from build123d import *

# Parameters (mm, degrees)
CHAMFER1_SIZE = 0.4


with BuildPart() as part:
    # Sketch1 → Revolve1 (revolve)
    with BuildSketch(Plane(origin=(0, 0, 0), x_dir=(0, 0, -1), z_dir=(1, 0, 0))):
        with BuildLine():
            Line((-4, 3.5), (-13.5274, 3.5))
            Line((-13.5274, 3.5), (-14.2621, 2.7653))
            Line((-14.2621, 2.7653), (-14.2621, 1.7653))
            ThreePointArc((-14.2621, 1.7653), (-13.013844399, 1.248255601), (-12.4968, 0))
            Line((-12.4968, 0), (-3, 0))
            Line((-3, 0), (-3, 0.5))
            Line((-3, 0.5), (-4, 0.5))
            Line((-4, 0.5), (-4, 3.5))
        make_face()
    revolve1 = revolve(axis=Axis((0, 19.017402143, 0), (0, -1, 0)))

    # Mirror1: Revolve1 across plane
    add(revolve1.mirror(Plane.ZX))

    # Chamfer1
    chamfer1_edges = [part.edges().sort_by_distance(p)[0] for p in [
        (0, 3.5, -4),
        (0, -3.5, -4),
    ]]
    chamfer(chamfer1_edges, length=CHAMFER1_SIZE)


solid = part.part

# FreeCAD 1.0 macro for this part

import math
import FreeCAD as App
import Part
import Sketcher

V = App.Vector
Q = App.Units.Quantity


def edges_at(feature, points):
    """Names of the edges that pass closest to the given points."""
    edges = feature.Shape.Edges
    near = lambda p: min(range(len(edges)), key=lambda i: edges[i].distToShape(Part.Vertex(*p))[0])
    return sorted({f"Edge{near(p) + 1}" for p in points})

doc = App.newDocument("Part")
body = doc.addObject("PartDesign::Body", "Body")

# Sketch on YZ plane
sketch1 = doc.addObject("Sketcher::SketchObject", "Sketch")
body.addObject(sketch1)
sketch1.AttachmentSupport = (doc.YZ_Plane, [""])
sketch1.MapMode = "FlatFace"
sketch1.addGeometry(Part.LineSegment(V(3.5, 4, 0), V(3.5, 13.5, 0)), False)
sketch1.addGeometry(Part.LineSegment(V(3.5, 13.5, 0), V(2.8, 14.3, 0)), False)
sketch1.addGeometry(Part.LineSegment(V(2.8, 14.3, 0), V(1.8, 14.3, 0)), False)
sketch1.addGeometry(Part.ArcOfCircle(Part.Circle(V(0, 14.3, 0), V(0, 0, 1), 1.8), math.radians(-90), math.radians(0)), False)
sketch1.addGeometry(Part.LineSegment(V(0, 12.5, 0), V(0, 3, 0)), False)
sketch1.addGeometry(Part.LineSegment(V(0, 3, 0), V(0.5, 3, 0)), False)
sketch1.addGeometry(Part.LineSegment(V(0.5, 3, 0), V(0.5, 4, 0)), False)
sketch1.addGeometry(Part.LineSegment(V(0.5, 4, 0), V(3.5, 4, 0)), False)
sketch1.addConstraint(Sketcher.Constraint("Coincident", 0, 2, 1, 1))
sketch1.addConstraint(Sketcher.Constraint("Coincident", 1, 2, 2, 1))
sketch1.addConstraint(Sketcher.Constraint("Coincident", 2, 2, 3, 2))
sketch1.addConstraint(Sketcher.Constraint("Coincident", 3, 1, 4, 1))
sketch1.addConstraint(Sketcher.Constraint("Coincident", 4, 2, 5, 1))
sketch1.addConstraint(Sketcher.Constraint("Coincident", 5, 2, 6, 1))
sketch1.addConstraint(Sketcher.Constraint("Coincident", 6, 2, 7, 1))
sketch1.addConstraint(Sketcher.Constraint("Coincident", 7, 2, 0, 1))
sketch1.addConstraint(Sketcher.Constraint("Vertical", 0))
sketch1.addConstraint(Sketcher.Constraint("Horizontal", 2))
sketch1.addConstraint(Sketcher.Constraint("Vertical", 4))
sketch1.addConstraint(Sketcher.Constraint("Horizontal", 5))
sketch1.addConstraint(Sketcher.Constraint("Vertical", 6))
sketch1.addConstraint(Sketcher.Constraint("Horizontal", 7))
sketch1.addConstraint(Sketcher.Constraint("PointOnObject", 3, 3, -2))
sketch1.addConstraint(Sketcher.Constraint("PointOnObject", 3, 1, -2))
sketch1.addConstraint(Sketcher.Constraint("Horizontal", 3, 3, 1, 2))
sketch1.addConstraint(Sketcher.Constraint("Equal", 2, 6))
sketch1.addConstraint(Sketcher.Constraint("DistanceX", 2, 2, 2, 1, 1.0))
sketch1.addConstraint(Sketcher.Constraint("DistanceX", 7, 1, 7, 2, 3.0))
sketch1.addConstraint(Sketcher.Constraint("Angle", 1, Q("135 deg")))
sketch1.addConstraint(Sketcher.Constraint("DistanceX", 5, 1, 5, 2, 0.5))
sketch1.addConstraint(Sketcher.Constraint("DistanceY", -1, 1, 4, 2, 3.0))
sketch1.addConstraint(Sketcher.Constraint("Radius", 3, 1.7653))
sketch1.addConstraint(Sketcher.Constraint("DistanceY", 0, 1, 0, 2, 9.5274))
revolution = doc.addObject("PartDesign::Revolution", "Revolution")
body.addObject(revolution)
revolution.Profile = sketch1
revolution.ReferenceAxis = (sketch1, ["H_Axis"])
revolution.Angle = 360
doc.recompute()

mirrored = doc.addObject("PartDesign::Mirrored", "Mirrored")
body.addObject(mirrored)
mirrored.Originals = [revolution]
mirrored.MirrorPlane = (doc.XZ_Plane, [""])
body.Tip = mirrored
doc.recompute()

chamfer = doc.addObject("PartDesign::Chamfer", "Chamfer")
body.addObject(chamfer)
chamfer.Base = (mirrored, edges_at(mirrored, [(0, 3.5, -4), (0, -3.5, -4)]))
chamfer.Size = 0.4

doc.recompute()
